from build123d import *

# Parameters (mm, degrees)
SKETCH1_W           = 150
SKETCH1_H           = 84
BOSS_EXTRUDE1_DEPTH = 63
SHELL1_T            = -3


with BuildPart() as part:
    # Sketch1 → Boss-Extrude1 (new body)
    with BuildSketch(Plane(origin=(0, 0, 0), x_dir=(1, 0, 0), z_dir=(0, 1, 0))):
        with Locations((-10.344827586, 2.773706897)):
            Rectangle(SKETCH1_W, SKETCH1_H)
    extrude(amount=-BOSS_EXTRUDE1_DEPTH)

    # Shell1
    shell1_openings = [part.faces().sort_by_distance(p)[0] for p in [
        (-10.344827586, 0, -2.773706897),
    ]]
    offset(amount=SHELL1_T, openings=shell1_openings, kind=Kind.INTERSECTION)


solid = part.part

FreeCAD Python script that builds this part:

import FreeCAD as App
import Part
import Sketcher

V = App.Vector
Q = App.Units.Quantity


def faces_at(feature, points):
    """Names of the faces that lie closest to the given points."""
    faces = feature.Shape.Faces
    near = lambda p: min(range(len(faces)), key=lambda i: faces[i].distToShape(Part.Vertex(*p))[0])
    return sorted({f"Face{near(p) + 1}" for p in points})


def add_polygon(sketch, points):
    """Adds a closed chain of lines whose ends are joined by coincident constraints."""
    first, n = sketch.GeometryCount, len(points)
    for a, b in zip(points, points[1:] + points[:1]):
        sketch.addGeometry(Part.LineSegment(App.Vector(*a, 0), App.Vector(*b, 0)), False)
    for i in range(n):
        sketch.addConstraint(Sketcher.Constraint("Coincident", first + i, 2, first + (i + 1) % n, 1))

doc = App.newDocument("Part")
body = doc.addObject("PartDesign::Body", "Body")

# Sketch on XZ plane
sketch1 = body.newObject("Sketcher::SketchObject", "Sketch")
sketch1.AttachmentSupport = (doc.getObject("XZ_Plane"), [""])
sketch1.MapMode = "FlatFace"
add_polygon(sketch1, [(-85, -45), (-85, 39), (65, 39), (65, -45)])  # lines 0-3
sketch1.addConstraint([
    Sketcher.Constraint("Vertical", 0),
    Sketcher.Constraint("Horizontal", 1),
    Sketcher.Constraint("Vertical", 2),
    Sketcher.Constraint("Horizontal", 3),
    Sketcher.Constraint("DistanceX", 1, 1, 1, 2, Q("150 mm")),
    Sketcher.Constraint("DistanceY", 0, 1, 0, 2, Q("84 mm")),
    Sketcher.Constraint("DistanceX", 0, 2, -1, 1, Q("85.344828 mm")),
    Sketcher.Constraint("DistanceY", -1, 1, 0, 2, Q("39.226293 mm")),
])
pad1 = body.newObject("PartDesign::Pad", "Pad")
pad1.Profile = sketch1
pad1.Length = 63
doc.recompute()

thickness = body.newObject("PartDesign::Thickness", "Thickness")
thickness.Base = (pad1, faces_at(pad1, [(-10.345, 0, -2.774)]))
thickness.Value = 3
thickness.Reversed = True
thickness.Join = "Intersection"

doc.recompute()
